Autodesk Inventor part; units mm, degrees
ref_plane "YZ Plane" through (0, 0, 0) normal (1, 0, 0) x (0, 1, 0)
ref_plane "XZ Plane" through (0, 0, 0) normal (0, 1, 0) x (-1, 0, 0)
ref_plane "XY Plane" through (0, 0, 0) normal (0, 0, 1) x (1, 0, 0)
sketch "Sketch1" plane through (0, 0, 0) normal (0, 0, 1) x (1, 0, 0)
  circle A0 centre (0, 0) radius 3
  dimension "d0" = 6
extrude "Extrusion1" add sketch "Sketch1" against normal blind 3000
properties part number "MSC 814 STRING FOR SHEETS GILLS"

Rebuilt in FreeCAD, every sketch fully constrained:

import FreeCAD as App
import Part
import Sketcher

V = App.Vector
Q = App.Units.Quantity

doc = App.newDocument("Part")
params = doc.addObject("Spreadsheet::Sheet", "Params")
for row, (alias, value) in enumerate([
    ("sketch1_diameter", "6 mm"),
    ("pad1_length", "3000 mm"),
], start=1):
    params.set(f"A{row}", alias)
    params.set(f"B{row}", "=" + value)
    params.setAlias(f"B{row}", alias)

body = doc.addObject("PartDesign::Body", "Body")

# Sketch on XY plane
sketch1 = body.newObject("Sketcher::SketchObject", "Sketch")
sketch1.AttachmentSupport = (doc.getObject("XY_Plane"), [""])
sketch1.MapMode = "FlatFace"
sketch1.addGeometry(Part.Circle(V(0, 0, 0), V(0, 0, 1), 3), False)
sketch1.addConstraint([
    Sketcher.Constraint("Coincident", 0, 3, -1, 1),
    Sketcher.Constraint("Diameter", 0, Q("6 mm")),
])
sketch1.setExpression("Constraints[1]", "Params.sketch1_diameter")
pad1 = body.newObject("PartDesign::Pad", "Pad")
pad1.Profile = sketch1
pad1.setExpression("Length", "Params.pad1_length")
pad1.Reversed = True

doc.recompute()
